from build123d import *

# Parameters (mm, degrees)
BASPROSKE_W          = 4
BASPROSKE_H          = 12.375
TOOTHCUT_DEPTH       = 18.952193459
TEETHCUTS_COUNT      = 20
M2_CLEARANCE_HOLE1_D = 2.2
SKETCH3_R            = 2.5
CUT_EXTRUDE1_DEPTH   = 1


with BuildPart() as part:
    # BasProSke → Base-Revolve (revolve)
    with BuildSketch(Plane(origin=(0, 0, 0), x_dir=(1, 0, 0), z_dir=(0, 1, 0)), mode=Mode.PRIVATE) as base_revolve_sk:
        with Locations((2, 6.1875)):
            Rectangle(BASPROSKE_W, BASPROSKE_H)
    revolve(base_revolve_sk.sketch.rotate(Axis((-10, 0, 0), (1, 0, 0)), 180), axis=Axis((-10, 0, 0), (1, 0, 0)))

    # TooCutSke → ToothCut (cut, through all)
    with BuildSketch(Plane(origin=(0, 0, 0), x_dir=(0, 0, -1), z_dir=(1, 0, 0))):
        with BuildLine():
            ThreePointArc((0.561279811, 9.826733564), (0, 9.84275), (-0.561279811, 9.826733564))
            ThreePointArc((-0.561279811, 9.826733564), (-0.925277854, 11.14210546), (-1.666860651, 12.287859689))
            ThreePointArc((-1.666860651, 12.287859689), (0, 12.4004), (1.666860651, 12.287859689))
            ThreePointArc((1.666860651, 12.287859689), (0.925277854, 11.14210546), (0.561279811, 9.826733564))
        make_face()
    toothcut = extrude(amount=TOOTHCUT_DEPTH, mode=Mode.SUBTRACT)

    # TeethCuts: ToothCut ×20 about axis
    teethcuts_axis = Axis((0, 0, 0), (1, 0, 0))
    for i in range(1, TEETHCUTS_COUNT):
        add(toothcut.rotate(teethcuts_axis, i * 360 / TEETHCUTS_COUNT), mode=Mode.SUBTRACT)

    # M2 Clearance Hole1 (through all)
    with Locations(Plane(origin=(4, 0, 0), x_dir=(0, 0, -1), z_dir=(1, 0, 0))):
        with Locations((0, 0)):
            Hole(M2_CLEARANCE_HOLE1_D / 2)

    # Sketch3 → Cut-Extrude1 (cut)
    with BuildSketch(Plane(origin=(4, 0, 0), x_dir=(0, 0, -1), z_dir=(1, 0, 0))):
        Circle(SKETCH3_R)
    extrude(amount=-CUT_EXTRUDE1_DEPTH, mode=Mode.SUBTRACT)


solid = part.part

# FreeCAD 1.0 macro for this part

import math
import FreeCAD as App
import Part
import Sketcher
from FreeCAD import Vector


def add_polygon(sketch, points):
    """Adds a closed chain of lines whose ends are joined by coincident constraints."""
    first, n = sketch.GeometryCount, len(points)
    for a, b in zip(points, points[1:] + points[:1]):
        sketch.addGeometry(Part.LineSegment(App.Vector(*a, 0), App.Vector(*b, 0)), False)
    for i in range(n):
        sketch.addConstraint(Sketcher.Constraint("Coincident", first + i, 2, first + (i + 1) % n, 1))

doc = App.newDocument("Part")
body = doc.addObject("PartDesign::Body", "Body")

# Sketch on XZ plane
sketch1 = body.newObject("Sketcher::SketchObject", "Sketch")
sketch1.AttachmentSupport = (doc.getObject("XZ_Plane"), [""])
sketch1.MapMode = "FlatFace"
add_polygon(sketch1, [(0, -12.375), (0, 0), (4, 0), (4, -12.375)])  # lines 0-3
sketch1.addConstraint([
    Sketcher.Constraint("Vertical", 0),
    Sketcher.Constraint("Horizontal", 1),
    Sketcher.Constraint("Vertical", 2),
    Sketcher.Constraint("Horizontal", 3),
    Sketcher.Constraint("Coincident", 0, 2, -1, 1),
    Sketcher.Constraint("DistanceX", 1, 1, 1, 2, 4.0),
    Sketcher.Constraint("DistanceY", 0, 1, 0, 2, 12.375),
])
revolution = body.newObject("PartDesign::Revolution", "Revolution")
revolution.Profile = sketch1
revolution.ReferenceAxis = (sketch1, ["H_Axis"])
revolution.Angle = 360

# Sketch on YZ plane
sketch2 = body.newObject("Sketcher::SketchObject", "Sketch001")
sketch2.AttachmentSupport = (doc.getObject("YZ_Plane"), [""])
sketch2.MapMode = "FlatFace"
sketch2.addGeometry([
    Part.ArcOfCircle(Part.Circle(Vector(0, 0, 0), Vector(0, 0, 1), 9.84275), math.radians(-3.269048), math.radians(3.269048)),
    Part.ArcOfCircle(Part.Circle(Vector(9.298136, -5.030126, 0), Vector(0, 0, 1), 4.5), math.radians(48.36499), math.radians(83.254113)),
    Part.ArcOfCircle(Part.Circle(Vector(0, 0, 0), Vector(0, 0, 1), 12.4004), math.radians(-7.725077), math.radians(7.725077)),
    Part.ArcOfCircle(Part.Circle(Vector(9.298136, 5.030126, 0), Vector(0, 0, 1), 4.5), math.radians(-83.254113), math.radians(-48.36499)),
], False)
sketch2.addConstraint([
    Sketcher.Constraint("Coincident", 0, 1, 1, 2),
    Sketcher.Constraint("Coincident", 1, 1, 2, 1),
    Sketcher.Constraint("Coincident", 2, 2, 3, 2),
    Sketcher.Constraint("Coincident", 3, 1, 0, 2),
    Sketcher.Constraint("Coincident", 0, 3, -1, 1),
    Sketcher.Constraint("Coincident", 2, 3, -1, 1),
    Sketcher.Constraint("Equal", 1, 3),
    Sketcher.Constraint("Symmetric", 1, 3, 3, 3, -1),
    Sketcher.Constraint("Radius", 1, 4.5),
    Sketcher.Constraint("Radius", 2, 12.4004),
    Sketcher.Constraint("Radius", 0, 9.84275),
    Sketcher.Constraint("DistanceY", 0, 1, -1, 1, 0.56128),
    Sketcher.Constraint("DistanceX", -1, 1, 1, 1, 12.28786),
])
pocket1 = body.newObject("PartDesign::Pocket", "Pocket")
pocket1.Profile = sketch2
pocket1.Type = "ThroughAll"
pocket1.Reversed = True
doc.recompute()

polarpattern = body.newObject("PartDesign::PolarPattern", "PolarPattern")
polarpattern.Originals = [pocket1]
polarpattern.Axis = (doc.getObject("X_Axis"), [""])
polarpattern.Angle = 360
polarpattern.Occurrences = 20
body.Tip = polarpattern

# Sketch on YZ plane
sketch3 = body.newObject("Sketcher::SketchObject", "Sketch002")
sketch3.AttachmentSupport = (doc.getObject("YZ_Plane"), [""])
sketch3.MapMode = "FlatFace"
sketch3.AttachmentOffset = App.Placement(Vector(0, 0, 4), App.Rotation())
sketch3.addGeometry(Part.Circle(Vector(0, 0, 0), Vector(0, 0, 1), 1.1), False)
sketch3.addConstraint([
    Sketcher.Constraint("Coincident", 0, 3, -1, 1),
    Sketcher.Constraint("Diameter", 0, 2.2),
])
doc.recompute()
hole = body.newObject("PartDesign::Hole", "Hole")
hole.Profile = sketch3
hole.ThreadType = "None"
hole.Diameter = 2.2
hole.DepthType = "ThroughAll"

# Sketch on YZ plane
sketch4 = body.newObject("Sketcher::SketchObject", "Sketch003")
sketch4.AttachmentSupport = (doc.getObject("YZ_Plane"), [""])
sketch4.MapMode = "FlatFace"
sketch4.AttachmentOffset = App.Placement(Vector(0, 0, 4), App.Rotation())
sketch4.addGeometry(Part.Circle(Vector(0, 0, 0), Vector(0, 0, 1), 2.5), False)
sketch4.addConstraint([
    Sketcher.Constraint("Coincident", 0, 3, -1, 1),
    Sketcher.Constraint("Diameter", 0, 5.0),
])
pocket2 = body.newObject("PartDesign::Pocket", "Pocket001")
pocket2.Profile = sketch4
pocket2.Length = 1

doc.recompute()
